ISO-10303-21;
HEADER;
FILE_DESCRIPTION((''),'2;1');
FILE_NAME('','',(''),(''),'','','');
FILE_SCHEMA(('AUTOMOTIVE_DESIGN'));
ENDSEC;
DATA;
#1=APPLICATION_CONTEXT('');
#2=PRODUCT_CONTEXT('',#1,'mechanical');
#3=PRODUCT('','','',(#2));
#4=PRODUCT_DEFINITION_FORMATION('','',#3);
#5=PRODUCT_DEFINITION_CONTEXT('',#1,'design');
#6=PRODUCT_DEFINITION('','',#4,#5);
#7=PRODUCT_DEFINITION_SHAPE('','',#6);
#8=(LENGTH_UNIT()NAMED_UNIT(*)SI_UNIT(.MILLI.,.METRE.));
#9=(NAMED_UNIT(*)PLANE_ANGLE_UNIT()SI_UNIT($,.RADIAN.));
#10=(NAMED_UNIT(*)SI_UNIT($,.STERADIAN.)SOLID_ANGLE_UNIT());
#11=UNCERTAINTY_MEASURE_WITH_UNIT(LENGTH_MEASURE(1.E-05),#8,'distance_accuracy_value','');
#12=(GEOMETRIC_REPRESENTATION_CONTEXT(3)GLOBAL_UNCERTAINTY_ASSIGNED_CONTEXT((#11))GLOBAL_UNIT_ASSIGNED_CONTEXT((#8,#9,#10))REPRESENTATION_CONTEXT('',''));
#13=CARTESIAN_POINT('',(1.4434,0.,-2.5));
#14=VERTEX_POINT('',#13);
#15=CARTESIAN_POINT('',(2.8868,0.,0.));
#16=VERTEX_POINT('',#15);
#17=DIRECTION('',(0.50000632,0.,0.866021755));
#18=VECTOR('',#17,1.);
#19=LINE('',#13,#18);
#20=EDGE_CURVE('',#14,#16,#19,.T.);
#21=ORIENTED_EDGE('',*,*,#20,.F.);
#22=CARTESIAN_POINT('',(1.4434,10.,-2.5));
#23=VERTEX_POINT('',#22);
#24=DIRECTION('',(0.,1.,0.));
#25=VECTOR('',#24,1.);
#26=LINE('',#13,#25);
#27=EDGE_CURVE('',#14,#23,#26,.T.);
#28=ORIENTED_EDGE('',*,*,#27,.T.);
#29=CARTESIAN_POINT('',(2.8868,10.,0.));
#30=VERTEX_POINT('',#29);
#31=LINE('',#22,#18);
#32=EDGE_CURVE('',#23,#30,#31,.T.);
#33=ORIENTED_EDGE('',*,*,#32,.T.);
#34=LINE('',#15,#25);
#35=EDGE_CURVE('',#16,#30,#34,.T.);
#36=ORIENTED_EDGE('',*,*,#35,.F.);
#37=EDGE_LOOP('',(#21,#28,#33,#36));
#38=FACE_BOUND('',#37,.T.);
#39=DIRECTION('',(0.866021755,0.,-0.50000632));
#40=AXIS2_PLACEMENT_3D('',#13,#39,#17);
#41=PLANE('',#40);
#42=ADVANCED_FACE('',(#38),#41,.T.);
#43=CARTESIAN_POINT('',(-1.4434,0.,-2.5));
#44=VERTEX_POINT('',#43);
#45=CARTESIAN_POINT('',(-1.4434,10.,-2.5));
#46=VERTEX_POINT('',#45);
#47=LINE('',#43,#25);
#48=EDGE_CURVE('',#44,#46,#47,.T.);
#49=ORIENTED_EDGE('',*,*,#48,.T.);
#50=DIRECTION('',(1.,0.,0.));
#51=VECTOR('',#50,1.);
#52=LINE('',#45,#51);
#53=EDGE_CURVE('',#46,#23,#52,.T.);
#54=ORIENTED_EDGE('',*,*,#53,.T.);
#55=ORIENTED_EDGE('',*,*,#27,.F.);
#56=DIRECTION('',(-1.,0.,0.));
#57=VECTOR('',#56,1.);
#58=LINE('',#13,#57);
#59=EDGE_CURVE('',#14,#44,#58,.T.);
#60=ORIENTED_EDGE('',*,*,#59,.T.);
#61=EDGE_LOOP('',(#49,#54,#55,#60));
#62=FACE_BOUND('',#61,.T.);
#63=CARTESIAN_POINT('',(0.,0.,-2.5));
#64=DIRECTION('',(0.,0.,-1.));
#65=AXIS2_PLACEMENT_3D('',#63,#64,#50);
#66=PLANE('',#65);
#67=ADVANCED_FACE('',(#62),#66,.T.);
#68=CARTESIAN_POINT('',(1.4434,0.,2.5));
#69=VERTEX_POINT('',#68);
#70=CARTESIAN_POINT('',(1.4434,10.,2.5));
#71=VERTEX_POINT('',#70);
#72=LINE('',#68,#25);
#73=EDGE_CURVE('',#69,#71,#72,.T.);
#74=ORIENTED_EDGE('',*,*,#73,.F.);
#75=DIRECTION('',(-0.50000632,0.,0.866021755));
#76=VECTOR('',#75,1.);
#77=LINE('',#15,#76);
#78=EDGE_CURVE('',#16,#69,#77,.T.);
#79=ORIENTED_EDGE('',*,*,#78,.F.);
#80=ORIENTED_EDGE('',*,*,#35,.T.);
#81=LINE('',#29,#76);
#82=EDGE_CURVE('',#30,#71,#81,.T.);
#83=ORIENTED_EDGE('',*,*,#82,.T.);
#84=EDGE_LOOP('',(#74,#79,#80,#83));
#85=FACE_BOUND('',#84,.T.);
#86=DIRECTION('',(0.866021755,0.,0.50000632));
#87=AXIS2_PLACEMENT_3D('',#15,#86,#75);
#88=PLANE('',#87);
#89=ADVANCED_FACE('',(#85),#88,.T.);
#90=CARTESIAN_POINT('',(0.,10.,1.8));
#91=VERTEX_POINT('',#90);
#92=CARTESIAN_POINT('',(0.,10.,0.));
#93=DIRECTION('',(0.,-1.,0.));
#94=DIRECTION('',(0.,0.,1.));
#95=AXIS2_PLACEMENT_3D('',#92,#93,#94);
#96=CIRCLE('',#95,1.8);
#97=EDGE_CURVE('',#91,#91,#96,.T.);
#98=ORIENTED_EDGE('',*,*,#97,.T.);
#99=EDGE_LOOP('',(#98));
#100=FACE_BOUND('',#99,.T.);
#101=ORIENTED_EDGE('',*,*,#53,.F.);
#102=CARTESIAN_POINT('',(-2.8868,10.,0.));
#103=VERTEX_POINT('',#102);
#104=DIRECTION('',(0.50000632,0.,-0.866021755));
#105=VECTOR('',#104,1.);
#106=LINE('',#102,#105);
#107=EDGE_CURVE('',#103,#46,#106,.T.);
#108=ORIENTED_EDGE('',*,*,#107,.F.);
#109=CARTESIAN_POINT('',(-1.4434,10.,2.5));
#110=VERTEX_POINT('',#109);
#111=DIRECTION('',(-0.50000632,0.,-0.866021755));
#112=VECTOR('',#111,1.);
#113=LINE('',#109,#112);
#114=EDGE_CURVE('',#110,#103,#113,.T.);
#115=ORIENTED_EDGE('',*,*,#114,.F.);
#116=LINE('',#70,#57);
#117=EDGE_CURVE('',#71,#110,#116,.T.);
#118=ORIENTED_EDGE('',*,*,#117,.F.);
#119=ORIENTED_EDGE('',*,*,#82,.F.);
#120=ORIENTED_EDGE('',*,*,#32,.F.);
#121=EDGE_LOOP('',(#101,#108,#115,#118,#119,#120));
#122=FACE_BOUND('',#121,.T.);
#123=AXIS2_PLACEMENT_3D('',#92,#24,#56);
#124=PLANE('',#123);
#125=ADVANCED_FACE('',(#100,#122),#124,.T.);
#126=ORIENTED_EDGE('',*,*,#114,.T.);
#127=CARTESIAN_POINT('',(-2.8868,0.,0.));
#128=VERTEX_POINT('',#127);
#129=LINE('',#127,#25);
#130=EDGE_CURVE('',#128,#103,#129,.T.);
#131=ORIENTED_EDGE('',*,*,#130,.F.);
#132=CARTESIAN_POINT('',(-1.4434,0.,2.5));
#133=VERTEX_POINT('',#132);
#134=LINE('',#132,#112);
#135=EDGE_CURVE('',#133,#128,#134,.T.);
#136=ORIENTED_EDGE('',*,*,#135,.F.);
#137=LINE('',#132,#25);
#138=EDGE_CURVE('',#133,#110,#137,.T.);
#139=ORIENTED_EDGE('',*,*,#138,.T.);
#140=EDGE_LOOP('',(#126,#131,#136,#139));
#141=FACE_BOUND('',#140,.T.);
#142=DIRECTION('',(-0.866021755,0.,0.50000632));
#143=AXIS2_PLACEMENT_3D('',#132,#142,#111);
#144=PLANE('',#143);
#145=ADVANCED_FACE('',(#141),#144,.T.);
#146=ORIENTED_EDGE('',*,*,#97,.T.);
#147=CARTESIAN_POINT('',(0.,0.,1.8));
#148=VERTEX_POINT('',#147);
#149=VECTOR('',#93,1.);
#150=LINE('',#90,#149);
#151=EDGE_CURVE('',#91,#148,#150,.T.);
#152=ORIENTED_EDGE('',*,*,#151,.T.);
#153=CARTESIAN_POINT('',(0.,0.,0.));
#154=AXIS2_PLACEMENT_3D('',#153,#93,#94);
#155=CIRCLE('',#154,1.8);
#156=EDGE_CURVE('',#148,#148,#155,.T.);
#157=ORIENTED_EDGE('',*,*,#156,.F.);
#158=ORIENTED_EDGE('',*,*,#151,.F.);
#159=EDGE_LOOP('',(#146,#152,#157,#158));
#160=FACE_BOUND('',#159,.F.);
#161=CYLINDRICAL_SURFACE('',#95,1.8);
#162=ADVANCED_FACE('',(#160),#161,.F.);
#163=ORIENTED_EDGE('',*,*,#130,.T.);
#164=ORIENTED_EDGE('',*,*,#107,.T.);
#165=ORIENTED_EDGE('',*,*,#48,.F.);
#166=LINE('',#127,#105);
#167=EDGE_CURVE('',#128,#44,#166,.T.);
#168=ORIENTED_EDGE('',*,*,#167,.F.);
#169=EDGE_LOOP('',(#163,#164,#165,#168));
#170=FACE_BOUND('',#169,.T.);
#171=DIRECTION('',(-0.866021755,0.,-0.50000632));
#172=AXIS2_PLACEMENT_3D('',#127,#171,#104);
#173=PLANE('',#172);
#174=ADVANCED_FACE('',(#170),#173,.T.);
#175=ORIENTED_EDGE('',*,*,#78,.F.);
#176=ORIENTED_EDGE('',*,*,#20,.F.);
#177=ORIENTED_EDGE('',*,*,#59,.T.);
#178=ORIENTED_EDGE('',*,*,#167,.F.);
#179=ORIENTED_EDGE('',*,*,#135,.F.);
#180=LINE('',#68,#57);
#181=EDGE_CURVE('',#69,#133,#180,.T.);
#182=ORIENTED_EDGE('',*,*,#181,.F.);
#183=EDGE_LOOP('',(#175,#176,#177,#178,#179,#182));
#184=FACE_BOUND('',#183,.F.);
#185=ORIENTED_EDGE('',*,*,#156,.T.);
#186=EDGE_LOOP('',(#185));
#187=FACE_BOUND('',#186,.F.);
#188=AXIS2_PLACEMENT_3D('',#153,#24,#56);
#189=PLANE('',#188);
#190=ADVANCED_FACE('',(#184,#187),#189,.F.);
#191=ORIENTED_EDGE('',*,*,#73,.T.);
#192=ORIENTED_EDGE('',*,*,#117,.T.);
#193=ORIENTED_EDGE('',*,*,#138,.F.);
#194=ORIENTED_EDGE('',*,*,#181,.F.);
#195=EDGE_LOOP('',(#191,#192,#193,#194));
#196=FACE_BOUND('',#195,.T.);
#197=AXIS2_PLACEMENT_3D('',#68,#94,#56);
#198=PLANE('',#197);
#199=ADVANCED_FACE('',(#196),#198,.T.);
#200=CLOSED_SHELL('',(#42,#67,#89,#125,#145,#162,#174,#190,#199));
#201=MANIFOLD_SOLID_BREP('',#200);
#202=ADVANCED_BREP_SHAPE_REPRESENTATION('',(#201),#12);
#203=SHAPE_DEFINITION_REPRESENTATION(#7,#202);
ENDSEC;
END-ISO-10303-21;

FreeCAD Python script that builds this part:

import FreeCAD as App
import Part
import Sketcher
Q = App.Units.Quantity

doc = App.newDocument("Part")
body = doc.addObject("PartDesign::Body", "Body")

# Sketch on XZ plane
sketch1 = body.newObject("Sketcher::SketchObject", "Sketch")
sketch1.AttachmentSupport = (doc.getObject("XZ_Plane"), [""])
sketch1.MapMode = "FlatFace"
sketch1.addGeometry(Part.LineSegment(App.Vector(2.9, 0, 0), App.Vector(1.4, -2.5, 0)), False)
sketch1.addGeometry(Part.LineSegment(App.Vector(1.4, -2.5, 0), App.Vector(-1.4, -2.5, 0)), False)
sketch1.addGeometry(Part.LineSegment(App.Vector(-1.4, -2.5, 0), App.Vector(-2.9, 0, 0)), False)
sketch1.addGeometry(Part.LineSegment(App.Vector(-2.9, 0, 0), App.Vector(-1.4, 2.5, 0)), False)
sketch1.addGeometry(Part.LineSegment(App.Vector(-1.4, 2.5, 0), App.Vector(1.4, 2.5, 0)), False)
sketch1.addGeometry(Part.LineSegment(App.Vector(1.4, 2.5, 0), App.Vector(2.9, 0, 0)), False)
sketch1.addConstraint(Sketcher.Constraint("Coincident", 0, 2, 1, 1))
sketch1.addConstraint(Sketcher.Constraint("Coincident", 1, 2, 2, 1))
sketch1.addConstraint(Sketcher.Constraint("Coincident", 2, 2, 3, 1))
sketch1.addConstraint(Sketcher.Constraint("Coincident", 3, 2, 4, 1))
sketch1.addConstraint(Sketcher.Constraint("Coincident", 4, 2, 5, 1))
sketch1.addConstraint(Sketcher.Constraint("Coincident", 5, 2, 0, 1))
sketch1.addConstraint(Sketcher.Constraint("Horizontal", 1))
sketch1.addConstraint(Sketcher.Constraint("Horizontal", 4))
sketch1.addConstraint(Sketcher.Constraint("Symmetric", 0, 2, 3, 2, -1, 1))
sketch1.addConstraint(Sketcher.Constraint("Symmetric", 2, 2, 5, 2, -1, 1))
sketch1.addConstraint(Sketcher.Constraint("PointOnObject", 2, 2, -1))
sketch1.addConstraint(Sketcher.Constraint("Parallel", 2, 5))
sketch1.addConstraint(Sketcher.Constraint("Vertical", 1, 2, 3, 2))
sketch1.addConstraint(Sketcher.Constraint("DistanceY", 0, 2, -1, 1, Q("2.5 mm")))
sketch1.addConstraint(Sketcher.Constraint("Angle", 0, Q("-120.0004 deg")))
sketch1.addConstraint(Sketcher.Constraint("DistanceX", 1, 2, 1, 1, Q("2.8868 mm")))
pad1 = body.newObject("PartDesign::Pad", "Pad")
pad1.Profile = sketch1
pad1.Length = 10
pad1.Reversed = True

# Sketch on XZ plane
sketch2 = body.newObject("Sketcher::SketchObject", "Sketch001")
sketch2.AttachmentSupport = (doc.getObject("XZ_Plane"), [""])
sketch2.MapMode = "FlatFace"
sketch2.AttachmentOffset = App.Placement(App.Vector(0, 0, -10), App.Rotation())
sketch2.addGeometry(Part.Circle(App.Vector(0, 0, 0), App.Vector(0, 0, 1), 1.8), False)
sketch2.addConstraint(Sketcher.Constraint("Coincident", 0, 3, -1, 1))
sketch2.addConstraint(Sketcher.Constraint("Diameter", 0, Q("3.6 mm")))
doc.recompute()
hole = body.newObject("PartDesign::Hole", "Hole")
hole.Profile = sketch2
hole.ThreadType = "None"
hole.Diameter = 3.6
hole.DepthType = "ThroughAll"
hole.Reversed = True

doc.recompute()
